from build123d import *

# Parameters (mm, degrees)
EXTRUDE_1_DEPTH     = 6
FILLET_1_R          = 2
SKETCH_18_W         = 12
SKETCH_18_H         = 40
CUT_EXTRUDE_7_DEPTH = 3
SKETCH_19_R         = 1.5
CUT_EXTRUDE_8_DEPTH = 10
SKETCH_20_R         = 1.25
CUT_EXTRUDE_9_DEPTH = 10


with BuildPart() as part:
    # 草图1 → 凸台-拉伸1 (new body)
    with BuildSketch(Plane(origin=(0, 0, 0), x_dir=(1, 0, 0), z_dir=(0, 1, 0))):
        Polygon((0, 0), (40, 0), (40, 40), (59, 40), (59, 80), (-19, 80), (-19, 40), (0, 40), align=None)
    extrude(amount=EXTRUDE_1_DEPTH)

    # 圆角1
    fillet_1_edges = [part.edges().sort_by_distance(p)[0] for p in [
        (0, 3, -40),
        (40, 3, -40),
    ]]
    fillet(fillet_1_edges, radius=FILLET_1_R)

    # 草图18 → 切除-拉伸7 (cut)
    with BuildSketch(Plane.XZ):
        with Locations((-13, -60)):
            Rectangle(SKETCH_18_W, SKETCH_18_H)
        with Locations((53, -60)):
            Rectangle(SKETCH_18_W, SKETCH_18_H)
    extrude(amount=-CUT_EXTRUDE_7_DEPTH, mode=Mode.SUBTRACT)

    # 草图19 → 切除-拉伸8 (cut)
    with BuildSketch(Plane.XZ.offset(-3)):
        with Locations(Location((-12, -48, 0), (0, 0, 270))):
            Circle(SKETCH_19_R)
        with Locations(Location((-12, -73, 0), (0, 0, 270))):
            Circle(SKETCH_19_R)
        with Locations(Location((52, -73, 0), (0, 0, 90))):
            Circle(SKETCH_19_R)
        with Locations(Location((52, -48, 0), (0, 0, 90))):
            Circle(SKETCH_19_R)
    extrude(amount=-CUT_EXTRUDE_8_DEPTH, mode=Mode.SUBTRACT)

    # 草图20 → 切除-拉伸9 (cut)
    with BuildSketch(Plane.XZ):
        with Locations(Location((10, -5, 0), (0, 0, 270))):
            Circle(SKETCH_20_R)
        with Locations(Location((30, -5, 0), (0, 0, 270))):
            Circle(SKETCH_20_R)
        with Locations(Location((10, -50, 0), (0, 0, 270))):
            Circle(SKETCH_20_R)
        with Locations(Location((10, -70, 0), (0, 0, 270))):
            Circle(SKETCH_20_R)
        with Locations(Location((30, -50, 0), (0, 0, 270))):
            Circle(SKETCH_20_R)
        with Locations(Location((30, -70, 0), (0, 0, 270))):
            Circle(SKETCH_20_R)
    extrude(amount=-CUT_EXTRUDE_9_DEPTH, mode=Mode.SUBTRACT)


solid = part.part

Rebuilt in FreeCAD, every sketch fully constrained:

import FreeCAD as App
import Part
import Sketcher


def edges_at(feature, points):
    """Names of the edges that pass closest to the given points."""
    edges = feature.Shape.Edges
    near = lambda p: min(range(len(edges)), key=lambda i: edges[i].distToShape(Part.Vertex(*p))[0])
    return sorted({f"Edge{near(p) + 1}" for p in points})

doc = App.newDocument("Part")
params = doc.addObject("Spreadsheet::Sheet", "Params")
for row, (alias, value) in enumerate([
    ("sketch1_width", "40 mm"),
    ("sketch1_width2", "19 mm"),
    ("pad1_length", "6 mm"),
    ("fillet_radius", "2 mm"),
    ("sketch2_width", "12 mm"),
    ("sketch2_height", "40 mm"),
    ("pocket1_length", "3 mm"),
    ("sketch3_diameter", "3 mm"),
    ("pocket2_length", "10 mm"),
    ("sketch4_diameter", "2.5 mm"),
    ("pocket3_length", "10 mm"),
], start=1):
    params.set(f"A{row}", alias)
    params.set(f"B{row}", "=" + value)
    params.setAlias(f"B{row}", alias)

body = doc.addObject("PartDesign::Body", "Body")

# Sketch on XZ plane
sketch1 = body.newObject("Sketcher::SketchObject", "Sketch")
sketch1.AttachmentSupport = (doc.getObject("XZ_Plane"), [""])
sketch1.MapMode = "FlatFace"
sketch1.addGeometry([
    Part.LineSegment(App.Vector(0, 0, 0), App.Vector(40, 0, 0)),  # 0
    Part.LineSegment(App.Vector(40, 0, 0), App.Vector(40, -40, 0)),  # 1
    Part.LineSegment(App.Vector(40, -40, 0), App.Vector(59, -40, 0)),  # 2
    Part.LineSegment(App.Vector(59, -40, 0), App.Vector(59, -80, 0)),  # 3
    Part.LineSegment(App.Vector(59, -80, 0), App.Vector(-19, -80, 0)),  # 4
    Part.LineSegment(App.Vector(-19, -80, 0), App.Vector(-19, -40, 0)),  # 5
    Part.LineSegment(App.Vector(-19, -40, 0), App.Vector(0, -40, 0)),  # 6
    Part.LineSegment(App.Vector(0, -40, 0), App.Vector(0, 0, 0)),  # 7
], False)
sketch1.addConstraint([
    Sketcher.Constraint("Coincident", 0, 2, 1, 1),
    Sketcher.Constraint("Coincident", 1, 2, 2, 1),
    Sketcher.Constraint("Coincident", 2, 2, 3, 1),
    Sketcher.Constraint("Coincident", 3, 2, 4, 1),
    Sketcher.Constraint("Coincident", 4, 2, 5, 1),
    Sketcher.Constraint("Coincident", 5, 2, 6, 1),
    Sketcher.Constraint("Coincident", 6, 2, 7, 1),
    Sketcher.Constraint("Coincident", 7, 2, 0, 1),
    Sketcher.Constraint("Horizontal", 0),
    Sketcher.Constraint("Vertical", 1),
    Sketcher.Constraint("Horizontal", 2),
    Sketcher.Constraint("Vertical", 3),
    Sketcher.Constraint("Horizontal", 4),
    Sketcher.Constraint("Vertical", 5),
    Sketcher.Constraint("Horizontal", 6),
    Sketcher.Constraint("Vertical", 7),
    Sketcher.Constraint("Coincident", 7, 2, -1, 1),
    Sketcher.Constraint("Horizontal", 2, 2, 5, 2),
    Sketcher.Constraint("Equal", 2, 6),
    Sketcher.Constraint("Equal", 0, 1),
    Sketcher.Constraint("Equal", 1, 3),
    Sketcher.Constraint("DistanceX", 0, 1, 0, 2, 40.0),
    Sketcher.Constraint("DistanceX", 2, 1, 2, 2, 19.0),
])
sketch1.setExpression("Constraints[21]", "Params.sketch1_width")
sketch1.setExpression("Constraints[22]", "Params.sketch1_width2")
pad1 = body.newObject("PartDesign::Pad", "Pad")
pad1.Profile = sketch1
pad1.setExpression("Length", "Params.pad1_length")
pad1.Reversed = True
doc.recompute()

fillet = body.newObject("PartDesign::Fillet", "Fillet")
fillet.Base = (pad1, edges_at(pad1, [(0, 3, -40), (40, 3, -40)]))
fillet.setExpression("Radius", "Params.fillet_radius")

# Sketch on XZ plane
sketch2 = body.newObject("Sketcher::SketchObject", "Sketch001")
sketch2.AttachmentSupport = (doc.getObject("XZ_Plane"), [""])
sketch2.MapMode = "FlatFace"
sketch2.addGeometry([
    Part.LineSegment(App.Vector(-19, -40, 0), App.Vector(-19, -80, 0)),  # 0
    Part.LineSegment(App.Vector(-19, -80, 0), App.Vector(-7, -80, 0)),  # 1
    Part.LineSegment(App.Vector(-7, -80, 0), App.Vector(-7, -40, 0)),  # 2
    Part.LineSegment(App.Vector(-7, -40, 0), App.Vector(-19, -40, 0)),  # 3
    Part.LineSegment(App.Vector(47, -40, 0), App.Vector(47, -80, 0)),  # 4
    Part.LineSegment(App.Vector(47, -80, 0), App.Vector(59, -80, 0)),  # 5
    Part.LineSegment(App.Vector(59, -80, 0), App.Vector(59, -40, 0)),  # 6
    Part.LineSegment(App.Vector(59, -40, 0), App.Vector(47, -40, 0)),  # 7
], False)
sketch2.addConstraint([
    Sketcher.Constraint("Coincident", 0, 2, 1, 1),
    Sketcher.Constraint("Coincident", 1, 2, 2, 1),
    Sketcher.Constraint("Coincident", 2, 2, 3, 1),
    Sketcher.Constraint("Coincident", 3, 2, 0, 1),
    Sketcher.Constraint("Coincident", 4, 2, 5, 1),
    Sketcher.Constraint("Coincident", 5, 2, 6, 1),
    Sketcher.Constraint("Coincident", 6, 2, 7, 1),
    Sketcher.Constraint("Coincident", 7, 2, 4, 1),
    Sketcher.Constraint("Vertical", 0),
    Sketcher.Constraint("Horizontal", 1),
    Sketcher.Constraint("Vertical", 2),
    Sketcher.Constraint("Horizontal", 3),
    Sketcher.Constraint("Vertical", 4),
    Sketcher.Constraint("Horizontal", 5),
    Sketcher.Constraint("Vertical", 6),
    Sketcher.Constraint("Horizontal", 7),
    Sketcher.Constraint("Horizontal", 1, 2, 4, 2),
    Sketcher.Constraint("Horizontal", 3, 2, 6, 2),
    Sketcher.Constraint("Equal", 3, 5),
    Sketcher.Constraint("DistanceX", 1, 1, 1, 2, 12.0),
    Sketcher.Constraint("DistanceY", 0, 2, 0, 1, 40.0),
    Sketcher.Constraint("DistanceX", 0, 2, -1, 1, 19.0),
    Sketcher.Constraint("DistanceY", 0, 2, -1, 1, 80.0),
    Sketcher.Constraint("DistanceX", -1, 1, 4, 2, 47.0),
])
sketch2.setExpression("Constraints[19]", "Params.sketch2_width")
sketch2.setExpression("Constraints[20]", "Params.sketch2_height")
pocket1 = body.newObject("PartDesign::Pocket", "Pocket")
pocket1.Profile = sketch2
pocket1.setExpression("Length", "Params.pocket1_length")

# Sketch on XZ plane
sketch3 = body.newObject("Sketcher::SketchObject", "Sketch002")
sketch3.AttachmentSupport = (doc.getObject("XZ_Plane"), [""])
sketch3.MapMode = "FlatFace"
sketch3.AttachmentOffset = App.Placement(App.Vector(0, 0, -3), App.Rotation())
sketch3.addGeometry([
    Part.Circle(App.Vector(-12, -48, 0), App.Vector(0, 0, 1), 1.5),
    Part.Circle(App.Vector(-12, -73, 0), App.Vector(0, 0, 1), 1.5),
    Part.Circle(App.Vector(52, -73, 0), App.Vector(0, 0, 1), 1.5),
    Part.Circle(App.Vector(52, -48, 0), App.Vector(0, 0, 1), 1.5),
], False)
sketch3.addConstraint([
    Sketcher.Constraint("Equal", 0, 1),
    Sketcher.Constraint("Equal", 1, 2),
    Sketcher.Constraint("Equal", 2, 3),
    Sketcher.Constraint("Horizontal", 1, 3, 2, 3),
    Sketcher.Constraint("Horizontal", 0, 3, 3, 3),
    Sketcher.Constraint("Vertical", 0, 3, 1, 3),
    Sketcher.Constraint("Vertical", 2, 3, 3, 3),
    Sketcher.Constraint("Diameter", 0, 3.0),
    Sketcher.Constraint("DistanceX", 0, 3, -1, 1, 12.0),
    Sketcher.Constraint("DistanceY", 0, 3, -1, 1, 48.0),
    Sketcher.Constraint("DistanceY", 1, 3, -1, 1, 73.0),
    Sketcher.Constraint("DistanceX", -1, 1, 2, 3, 52.0),
])
sketch3.setExpression("Constraints[7]", "Params.sketch3_diameter")
pocket2 = body.newObject("PartDesign::Pocket", "Pocket001")
pocket2.Profile = sketch3
pocket2.setExpression("Length", "Params.pocket2_length")

# Sketch on XZ plane
sketch4 = body.newObject("Sketcher::SketchObject", "Sketch003")
sketch4.AttachmentSupport = (doc.getObject("XZ_Plane"), [""])
sketch4.MapMode = "FlatFace"
sketch4.addGeometry([
    Part.Circle(App.Vector(10, -5, 0), App.Vector(0, 0, 1), 1.25),  # 0
    Part.Circle(App.Vector(30, -5, 0), App.Vector(0, 0, 1), 1.25),  # 1
    Part.Circle(App.Vector(10, -50, 0), App.Vector(0, 0, 1), 1.25),  # 2
    Part.Circle(App.Vector(10, -70, 0), App.Vector(0, 0, 1), 1.25),  # 3
    Part.Circle(App.Vector(30, -50, 0), App.Vector(0, 0, 1), 1.25),  # 4
    Part.Circle(App.Vector(30, -70, 0), App.Vector(0, 0, 1), 1.25),  # 5
], False)
sketch4.addConstraint([
    Sketcher.Constraint("Equal", 0, 1),
    Sketcher.Constraint("Equal", 1, 2),
    Sketcher.Constraint("Equal", 2, 3),
    Sketcher.Constraint("Equal", 3, 4),
    Sketcher.Constraint("Equal", 4, 5),
    Sketcher.Constraint("Horizontal", 0, 3, 1, 3),
    Sketcher.Constraint("Horizontal", 2, 3, 4, 3),
    Sketcher.Constraint("Horizontal", 3, 3, 5, 3),
    Sketcher.Constraint("Vertical", 0, 3, 2, 3),
    Sketcher.Constraint("Vertical", 2, 3, 3, 3),
    Sketcher.Constraint("Vertical", 1, 3, 4, 3),
    Sketcher.Constraint("Vertical", 4, 3, 5, 3),
    Sketcher.Constraint("Diameter", 0, 2.5),
    Sketcher.Constraint("DistanceX", -1, 1, 0, 3, 10.0),
    Sketcher.Constraint("DistanceY", 0, 3, -1, 1, 5.0),
    Sketcher.Constraint("DistanceX", -1, 1, 1, 3, 30.0),
    Sketcher.Constraint("DistanceY", 2, 3, -1, 1, 50.0),
    Sketcher.Constraint("DistanceY", 3, 3, -1, 1, 70.0),
])
sketch4.setExpression("Constraints[12]", "Params.sketch4_diameter")
pocket3 = body.newObject("PartDesign::Pocket", "Pocket002")
pocket3.Profile = sketch4
pocket3.setExpression("Length", "Params.pocket3_length")

doc.recompute()
